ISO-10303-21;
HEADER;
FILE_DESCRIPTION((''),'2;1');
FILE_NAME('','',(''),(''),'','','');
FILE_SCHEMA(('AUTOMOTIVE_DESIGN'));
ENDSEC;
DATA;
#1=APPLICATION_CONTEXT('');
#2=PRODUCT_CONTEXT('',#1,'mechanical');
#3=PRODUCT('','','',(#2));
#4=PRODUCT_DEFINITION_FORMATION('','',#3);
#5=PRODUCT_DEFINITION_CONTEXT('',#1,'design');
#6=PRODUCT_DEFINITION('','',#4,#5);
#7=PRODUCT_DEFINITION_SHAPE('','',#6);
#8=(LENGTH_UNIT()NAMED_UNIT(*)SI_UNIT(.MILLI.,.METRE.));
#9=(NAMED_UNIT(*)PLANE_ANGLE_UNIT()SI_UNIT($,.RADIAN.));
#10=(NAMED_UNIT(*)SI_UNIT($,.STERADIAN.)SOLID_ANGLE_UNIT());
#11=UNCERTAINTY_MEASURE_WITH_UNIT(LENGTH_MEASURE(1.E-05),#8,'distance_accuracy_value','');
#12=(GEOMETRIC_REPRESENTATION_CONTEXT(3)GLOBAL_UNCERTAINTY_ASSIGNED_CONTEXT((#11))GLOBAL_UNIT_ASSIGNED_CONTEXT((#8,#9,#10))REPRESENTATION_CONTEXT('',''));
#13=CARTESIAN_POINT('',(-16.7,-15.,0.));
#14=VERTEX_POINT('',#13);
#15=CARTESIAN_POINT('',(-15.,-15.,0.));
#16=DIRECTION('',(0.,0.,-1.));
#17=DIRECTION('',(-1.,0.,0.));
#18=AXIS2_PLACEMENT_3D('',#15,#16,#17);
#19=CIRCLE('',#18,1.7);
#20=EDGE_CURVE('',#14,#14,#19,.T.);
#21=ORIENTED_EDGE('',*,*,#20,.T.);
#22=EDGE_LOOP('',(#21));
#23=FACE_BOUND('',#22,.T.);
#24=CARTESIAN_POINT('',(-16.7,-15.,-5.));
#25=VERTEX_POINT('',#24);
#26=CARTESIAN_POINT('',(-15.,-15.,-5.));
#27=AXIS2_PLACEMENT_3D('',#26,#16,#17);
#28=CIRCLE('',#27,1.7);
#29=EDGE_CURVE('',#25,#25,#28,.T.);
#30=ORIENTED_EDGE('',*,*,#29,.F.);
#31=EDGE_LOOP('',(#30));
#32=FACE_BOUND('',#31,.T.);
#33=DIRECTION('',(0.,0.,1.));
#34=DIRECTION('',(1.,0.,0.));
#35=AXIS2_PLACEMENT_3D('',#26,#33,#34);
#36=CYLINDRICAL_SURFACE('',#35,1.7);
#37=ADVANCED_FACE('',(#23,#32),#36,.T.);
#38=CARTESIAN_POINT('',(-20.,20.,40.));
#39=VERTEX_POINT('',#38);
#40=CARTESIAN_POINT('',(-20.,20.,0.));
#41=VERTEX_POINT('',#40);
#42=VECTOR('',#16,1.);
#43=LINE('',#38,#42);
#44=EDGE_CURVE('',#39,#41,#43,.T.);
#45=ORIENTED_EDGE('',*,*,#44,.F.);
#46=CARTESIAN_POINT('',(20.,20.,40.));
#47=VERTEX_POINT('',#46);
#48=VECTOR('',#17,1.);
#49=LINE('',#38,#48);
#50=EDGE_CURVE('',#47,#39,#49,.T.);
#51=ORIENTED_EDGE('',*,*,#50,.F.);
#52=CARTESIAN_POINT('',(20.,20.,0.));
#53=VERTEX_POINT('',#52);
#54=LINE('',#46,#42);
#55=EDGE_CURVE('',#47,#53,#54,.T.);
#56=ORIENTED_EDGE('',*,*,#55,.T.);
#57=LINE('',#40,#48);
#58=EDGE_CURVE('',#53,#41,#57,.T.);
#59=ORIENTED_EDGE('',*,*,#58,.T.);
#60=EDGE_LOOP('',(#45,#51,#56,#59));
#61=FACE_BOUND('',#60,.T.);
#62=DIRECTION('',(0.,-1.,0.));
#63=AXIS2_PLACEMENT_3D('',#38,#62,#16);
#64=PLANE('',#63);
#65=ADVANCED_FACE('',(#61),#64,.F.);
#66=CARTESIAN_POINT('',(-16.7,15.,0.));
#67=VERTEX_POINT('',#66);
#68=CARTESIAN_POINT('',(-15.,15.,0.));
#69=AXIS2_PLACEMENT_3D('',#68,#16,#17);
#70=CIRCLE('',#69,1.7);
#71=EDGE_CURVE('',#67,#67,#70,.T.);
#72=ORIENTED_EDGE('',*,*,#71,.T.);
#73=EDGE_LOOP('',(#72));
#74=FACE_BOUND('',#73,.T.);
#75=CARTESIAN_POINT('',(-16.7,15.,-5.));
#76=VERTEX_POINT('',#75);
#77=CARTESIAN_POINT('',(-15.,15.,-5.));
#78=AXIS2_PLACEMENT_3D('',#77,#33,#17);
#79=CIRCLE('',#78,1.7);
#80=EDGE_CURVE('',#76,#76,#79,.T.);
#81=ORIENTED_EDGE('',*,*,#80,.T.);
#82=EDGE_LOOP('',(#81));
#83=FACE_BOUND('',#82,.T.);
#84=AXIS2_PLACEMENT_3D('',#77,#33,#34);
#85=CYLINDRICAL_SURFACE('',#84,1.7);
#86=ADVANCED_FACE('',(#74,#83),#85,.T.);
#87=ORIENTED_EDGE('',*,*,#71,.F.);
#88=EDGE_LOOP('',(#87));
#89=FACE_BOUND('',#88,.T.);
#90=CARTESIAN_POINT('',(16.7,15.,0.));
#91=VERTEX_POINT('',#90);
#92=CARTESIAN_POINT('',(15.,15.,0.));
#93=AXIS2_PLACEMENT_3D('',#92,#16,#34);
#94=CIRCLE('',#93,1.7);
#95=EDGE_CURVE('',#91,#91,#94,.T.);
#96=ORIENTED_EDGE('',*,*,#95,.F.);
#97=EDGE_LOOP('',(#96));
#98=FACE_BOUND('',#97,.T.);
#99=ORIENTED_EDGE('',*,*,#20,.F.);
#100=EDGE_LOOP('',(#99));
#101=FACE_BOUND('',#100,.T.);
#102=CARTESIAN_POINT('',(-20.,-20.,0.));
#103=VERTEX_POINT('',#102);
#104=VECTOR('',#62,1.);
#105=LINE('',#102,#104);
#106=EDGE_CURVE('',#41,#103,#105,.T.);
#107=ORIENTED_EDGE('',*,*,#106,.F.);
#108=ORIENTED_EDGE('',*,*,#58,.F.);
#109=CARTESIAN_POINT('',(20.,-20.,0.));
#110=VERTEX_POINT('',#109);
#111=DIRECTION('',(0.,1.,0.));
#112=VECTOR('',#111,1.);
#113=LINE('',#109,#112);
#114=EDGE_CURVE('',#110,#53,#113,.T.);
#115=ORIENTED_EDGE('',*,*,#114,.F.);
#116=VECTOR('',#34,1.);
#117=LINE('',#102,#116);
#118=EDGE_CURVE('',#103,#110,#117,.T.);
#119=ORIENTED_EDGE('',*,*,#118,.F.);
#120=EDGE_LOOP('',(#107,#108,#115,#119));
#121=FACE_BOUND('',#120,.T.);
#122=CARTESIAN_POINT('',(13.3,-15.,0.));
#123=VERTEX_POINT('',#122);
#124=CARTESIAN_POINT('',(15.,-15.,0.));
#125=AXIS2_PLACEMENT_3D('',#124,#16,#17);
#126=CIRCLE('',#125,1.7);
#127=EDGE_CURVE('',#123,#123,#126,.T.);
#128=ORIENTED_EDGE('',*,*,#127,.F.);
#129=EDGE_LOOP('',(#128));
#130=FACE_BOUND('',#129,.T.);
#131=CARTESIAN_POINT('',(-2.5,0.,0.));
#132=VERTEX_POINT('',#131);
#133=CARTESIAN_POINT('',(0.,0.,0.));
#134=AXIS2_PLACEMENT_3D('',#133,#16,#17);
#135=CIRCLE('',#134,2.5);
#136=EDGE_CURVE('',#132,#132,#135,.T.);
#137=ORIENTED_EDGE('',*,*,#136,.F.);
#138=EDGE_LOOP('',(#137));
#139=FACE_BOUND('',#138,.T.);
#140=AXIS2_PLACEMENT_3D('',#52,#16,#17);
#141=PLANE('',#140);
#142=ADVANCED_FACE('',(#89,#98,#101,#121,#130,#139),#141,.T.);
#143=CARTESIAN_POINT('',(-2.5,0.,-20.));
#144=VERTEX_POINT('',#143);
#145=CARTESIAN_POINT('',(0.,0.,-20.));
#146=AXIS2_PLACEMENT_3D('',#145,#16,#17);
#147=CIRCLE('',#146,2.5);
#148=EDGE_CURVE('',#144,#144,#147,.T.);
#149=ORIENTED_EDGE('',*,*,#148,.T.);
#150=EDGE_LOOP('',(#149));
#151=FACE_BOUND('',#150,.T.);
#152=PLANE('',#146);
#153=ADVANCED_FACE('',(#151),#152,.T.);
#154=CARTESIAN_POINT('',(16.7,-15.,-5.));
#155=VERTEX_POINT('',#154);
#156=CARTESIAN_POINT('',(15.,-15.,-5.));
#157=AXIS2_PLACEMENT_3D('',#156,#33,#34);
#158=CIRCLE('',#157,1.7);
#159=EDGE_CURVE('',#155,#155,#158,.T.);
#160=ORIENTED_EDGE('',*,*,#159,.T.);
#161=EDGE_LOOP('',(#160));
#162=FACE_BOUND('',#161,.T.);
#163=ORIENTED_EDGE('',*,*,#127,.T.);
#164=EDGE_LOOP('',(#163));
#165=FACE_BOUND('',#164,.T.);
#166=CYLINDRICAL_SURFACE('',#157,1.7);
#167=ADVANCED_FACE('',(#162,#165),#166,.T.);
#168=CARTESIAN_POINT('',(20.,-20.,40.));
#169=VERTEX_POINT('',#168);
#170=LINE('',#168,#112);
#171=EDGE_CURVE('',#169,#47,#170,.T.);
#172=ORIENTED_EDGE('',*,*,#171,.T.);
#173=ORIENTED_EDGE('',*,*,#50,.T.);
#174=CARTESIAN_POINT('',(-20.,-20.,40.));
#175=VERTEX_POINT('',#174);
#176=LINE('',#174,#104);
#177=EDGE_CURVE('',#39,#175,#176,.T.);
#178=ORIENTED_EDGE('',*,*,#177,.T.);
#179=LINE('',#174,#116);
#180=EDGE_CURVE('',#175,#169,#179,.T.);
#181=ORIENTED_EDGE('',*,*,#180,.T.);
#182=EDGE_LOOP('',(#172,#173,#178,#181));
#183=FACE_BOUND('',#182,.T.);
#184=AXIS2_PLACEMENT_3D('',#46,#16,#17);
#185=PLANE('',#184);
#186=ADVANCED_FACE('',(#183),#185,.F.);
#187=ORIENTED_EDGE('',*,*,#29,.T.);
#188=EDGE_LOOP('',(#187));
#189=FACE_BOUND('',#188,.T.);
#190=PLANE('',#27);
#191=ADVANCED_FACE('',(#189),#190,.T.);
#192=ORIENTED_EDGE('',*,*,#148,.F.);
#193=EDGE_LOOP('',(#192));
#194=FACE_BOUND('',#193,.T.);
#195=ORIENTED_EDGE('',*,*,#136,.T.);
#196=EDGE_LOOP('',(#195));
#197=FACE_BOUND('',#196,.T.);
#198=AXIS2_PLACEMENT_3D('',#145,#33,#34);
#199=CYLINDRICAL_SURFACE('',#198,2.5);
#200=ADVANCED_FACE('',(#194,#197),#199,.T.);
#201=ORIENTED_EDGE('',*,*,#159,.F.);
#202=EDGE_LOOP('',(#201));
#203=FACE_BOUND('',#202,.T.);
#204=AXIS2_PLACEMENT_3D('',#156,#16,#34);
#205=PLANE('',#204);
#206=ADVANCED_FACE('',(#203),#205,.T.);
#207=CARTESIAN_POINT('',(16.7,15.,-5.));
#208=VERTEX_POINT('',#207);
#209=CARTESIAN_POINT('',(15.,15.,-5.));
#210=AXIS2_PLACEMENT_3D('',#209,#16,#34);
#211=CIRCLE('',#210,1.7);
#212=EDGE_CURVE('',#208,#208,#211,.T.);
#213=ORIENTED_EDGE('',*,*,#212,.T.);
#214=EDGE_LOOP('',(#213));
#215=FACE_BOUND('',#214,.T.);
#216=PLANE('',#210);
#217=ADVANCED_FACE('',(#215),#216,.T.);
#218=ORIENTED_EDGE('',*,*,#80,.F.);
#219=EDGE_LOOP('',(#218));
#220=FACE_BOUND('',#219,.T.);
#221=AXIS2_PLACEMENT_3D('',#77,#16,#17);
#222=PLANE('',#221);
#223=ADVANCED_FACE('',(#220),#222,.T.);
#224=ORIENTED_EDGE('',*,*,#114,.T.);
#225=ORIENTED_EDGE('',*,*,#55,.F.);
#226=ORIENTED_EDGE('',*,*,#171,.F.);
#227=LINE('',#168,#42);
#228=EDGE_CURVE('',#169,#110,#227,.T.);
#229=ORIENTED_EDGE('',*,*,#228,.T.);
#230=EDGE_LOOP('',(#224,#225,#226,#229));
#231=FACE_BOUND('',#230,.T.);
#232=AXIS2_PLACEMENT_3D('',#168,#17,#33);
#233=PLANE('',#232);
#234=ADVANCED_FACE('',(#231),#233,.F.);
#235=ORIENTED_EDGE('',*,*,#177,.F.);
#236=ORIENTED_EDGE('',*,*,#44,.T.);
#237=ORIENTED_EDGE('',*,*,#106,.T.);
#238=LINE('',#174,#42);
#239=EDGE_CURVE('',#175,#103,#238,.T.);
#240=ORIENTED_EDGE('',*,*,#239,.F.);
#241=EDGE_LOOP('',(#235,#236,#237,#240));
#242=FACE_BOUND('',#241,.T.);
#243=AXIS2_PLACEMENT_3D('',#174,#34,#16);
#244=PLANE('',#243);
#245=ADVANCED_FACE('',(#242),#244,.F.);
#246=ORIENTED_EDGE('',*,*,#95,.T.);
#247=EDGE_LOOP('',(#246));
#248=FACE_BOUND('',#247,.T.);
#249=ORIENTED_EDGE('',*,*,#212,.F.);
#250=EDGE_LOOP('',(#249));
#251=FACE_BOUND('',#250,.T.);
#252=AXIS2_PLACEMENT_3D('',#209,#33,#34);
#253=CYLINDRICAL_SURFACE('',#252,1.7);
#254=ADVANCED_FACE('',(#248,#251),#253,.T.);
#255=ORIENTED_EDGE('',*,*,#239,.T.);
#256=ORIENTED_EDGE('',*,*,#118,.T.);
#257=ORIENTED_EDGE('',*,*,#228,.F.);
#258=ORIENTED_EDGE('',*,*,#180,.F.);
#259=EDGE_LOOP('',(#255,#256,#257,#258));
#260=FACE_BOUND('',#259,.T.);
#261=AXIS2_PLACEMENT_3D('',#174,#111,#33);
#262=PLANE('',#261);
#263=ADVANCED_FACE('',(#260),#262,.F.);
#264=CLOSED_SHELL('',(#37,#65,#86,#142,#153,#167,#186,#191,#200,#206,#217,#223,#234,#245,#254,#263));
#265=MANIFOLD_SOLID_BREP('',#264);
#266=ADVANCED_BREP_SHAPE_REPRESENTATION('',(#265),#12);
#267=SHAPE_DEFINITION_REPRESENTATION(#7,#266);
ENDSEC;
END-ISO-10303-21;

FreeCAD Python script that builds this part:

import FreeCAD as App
import Part
import Sketcher
Q = App.Units.Quantity

doc = App.newDocument("Part")
body = doc.addObject("PartDesign::Body", "Body")

# Sketch on XY plane
sketch1 = doc.addObject("Sketcher::SketchObject", "Sketch")
body.addObject(sketch1)
sketch1.AttachmentSupport = (doc.XY_Plane, [""])
sketch1.MapMode = "FlatFace"
sketch1.addGeometry([
    Part.LineSegment(App.Vector(-20, 20, 0), App.Vector(-20, -20, 0)),
    Part.LineSegment(App.Vector(-20, -20, 0), App.Vector(20, -20, 0)),
    Part.LineSegment(App.Vector(20, -20, 0), App.Vector(20, 20, 0)),
    Part.LineSegment(App.Vector(20, 20, 0), App.Vector(-20, 20, 0)),
], False)
sketch1.addConstraint([
    Sketcher.Constraint("Coincident", 0, 2, 1, 1),
    Sketcher.Constraint("Coincident", 1, 2, 2, 1),
    Sketcher.Constraint("Coincident", 2, 2, 3, 1),
    Sketcher.Constraint("Coincident", 3, 2, 0, 1),
    Sketcher.Constraint("Vertical", 0),
    Sketcher.Constraint("Horizontal", 1),
    Sketcher.Constraint("Vertical", 2),
    Sketcher.Constraint("Horizontal", 3),
    Sketcher.Constraint("Symmetric", 0, 2, 2, 2, -1, 1),
    Sketcher.Constraint("Equal", 3, 0),
    Sketcher.Constraint("DistanceX", 1, 1, 1, 2, Q("40 mm")),
])
pad1 = doc.addObject("PartDesign::Pad", "Pad")
body.addObject(pad1)
pad1.Profile = sketch1
pad1.Length = 40

# Sketch on XY plane
sketch2 = doc.addObject("Sketcher::SketchObject", "Sketch001")
body.addObject(sketch2)
sketch2.AttachmentSupport = (doc.XY_Plane, [""])
sketch2.MapMode = "FlatFace"
sketch2.addGeometry(Part.Circle(App.Vector(-15, -15, 0), App.Vector(0, 0, 1), 1.7), False)
sketch2.addConstraint([
    Sketcher.Constraint("Diameter", 0, Q("3.4 mm")),
    Sketcher.Constraint("DistanceX", 0, 3, -1, 1, Q("15 mm")),
    Sketcher.Constraint("DistanceY", 0, 3, -1, 1, Q("15 mm")),
])
pad2 = doc.addObject("PartDesign::Pad", "Pad001")
body.addObject(pad2)
pad2.Profile = sketch2
pad2.Length = 5
pad2.Reversed = True
doc.recompute()

mirrored = doc.addObject("PartDesign::Mirrored", "Mirrored")
body.addObject(mirrored)
mirrored.Originals = [pad2]
mirrored.MirrorPlane = (doc.YZ_Plane, [""])
body.Tip = mirrored
doc.recompute()

mirrored2 = doc.addObject("PartDesign::Mirrored", "Mirrored001")
body.addObject(mirrored2)
mirrored2.Originals = [pad2]
mirrored2.MirrorPlane = (doc.XZ_Plane, [""])
body.Tip = mirrored2

# Sketch on XY plane
sketch3 = doc.addObject("Sketcher::SketchObject", "Sketch002")
body.addObject(sketch3)
sketch3.AttachmentSupport = (doc.XY_Plane, [""])
sketch3.MapMode = "FlatFace"
sketch3.addGeometry(Part.Circle(App.Vector(15, 15, 0), App.Vector(0, 0, 1), 1.7), False)
sketch3.addConstraint([
    Sketcher.Constraint("Diameter", 0, Q("3.4 mm")),
    Sketcher.Constraint("DistanceX", -1, 1, 0, 3, Q("15 mm")),
    Sketcher.Constraint("DistanceY", -1, 1, 0, 3, Q("15 mm")),
])
pad3 = doc.addObject("PartDesign::Pad", "Pad002")
body.addObject(pad3)
pad3.Profile = sketch3
pad3.Length = 5
pad3.Reversed = True

# Sketch on XY plane
sketch4 = doc.addObject("Sketcher::SketchObject", "Sketch003")
body.addObject(sketch4)
sketch4.AttachmentSupport = (doc.XY_Plane, [""])
sketch4.MapMode = "FlatFace"
sketch4.addGeometry(Part.Circle(App.Vector(0, 0, 0), App.Vector(0, 0, 1), 2.5), False)
sketch4.addConstraint([
    Sketcher.Constraint("Coincident", 0, 3, -1, 1),
    Sketcher.Constraint("Diameter", 0, Q("5 mm")),
])
pad4 = doc.addObject("PartDesign::Pad", "Pad003")
body.addObject(pad4)
pad4.Profile = sketch4
pad4.Length = 20
pad4.Reversed = True

doc.recompute()
